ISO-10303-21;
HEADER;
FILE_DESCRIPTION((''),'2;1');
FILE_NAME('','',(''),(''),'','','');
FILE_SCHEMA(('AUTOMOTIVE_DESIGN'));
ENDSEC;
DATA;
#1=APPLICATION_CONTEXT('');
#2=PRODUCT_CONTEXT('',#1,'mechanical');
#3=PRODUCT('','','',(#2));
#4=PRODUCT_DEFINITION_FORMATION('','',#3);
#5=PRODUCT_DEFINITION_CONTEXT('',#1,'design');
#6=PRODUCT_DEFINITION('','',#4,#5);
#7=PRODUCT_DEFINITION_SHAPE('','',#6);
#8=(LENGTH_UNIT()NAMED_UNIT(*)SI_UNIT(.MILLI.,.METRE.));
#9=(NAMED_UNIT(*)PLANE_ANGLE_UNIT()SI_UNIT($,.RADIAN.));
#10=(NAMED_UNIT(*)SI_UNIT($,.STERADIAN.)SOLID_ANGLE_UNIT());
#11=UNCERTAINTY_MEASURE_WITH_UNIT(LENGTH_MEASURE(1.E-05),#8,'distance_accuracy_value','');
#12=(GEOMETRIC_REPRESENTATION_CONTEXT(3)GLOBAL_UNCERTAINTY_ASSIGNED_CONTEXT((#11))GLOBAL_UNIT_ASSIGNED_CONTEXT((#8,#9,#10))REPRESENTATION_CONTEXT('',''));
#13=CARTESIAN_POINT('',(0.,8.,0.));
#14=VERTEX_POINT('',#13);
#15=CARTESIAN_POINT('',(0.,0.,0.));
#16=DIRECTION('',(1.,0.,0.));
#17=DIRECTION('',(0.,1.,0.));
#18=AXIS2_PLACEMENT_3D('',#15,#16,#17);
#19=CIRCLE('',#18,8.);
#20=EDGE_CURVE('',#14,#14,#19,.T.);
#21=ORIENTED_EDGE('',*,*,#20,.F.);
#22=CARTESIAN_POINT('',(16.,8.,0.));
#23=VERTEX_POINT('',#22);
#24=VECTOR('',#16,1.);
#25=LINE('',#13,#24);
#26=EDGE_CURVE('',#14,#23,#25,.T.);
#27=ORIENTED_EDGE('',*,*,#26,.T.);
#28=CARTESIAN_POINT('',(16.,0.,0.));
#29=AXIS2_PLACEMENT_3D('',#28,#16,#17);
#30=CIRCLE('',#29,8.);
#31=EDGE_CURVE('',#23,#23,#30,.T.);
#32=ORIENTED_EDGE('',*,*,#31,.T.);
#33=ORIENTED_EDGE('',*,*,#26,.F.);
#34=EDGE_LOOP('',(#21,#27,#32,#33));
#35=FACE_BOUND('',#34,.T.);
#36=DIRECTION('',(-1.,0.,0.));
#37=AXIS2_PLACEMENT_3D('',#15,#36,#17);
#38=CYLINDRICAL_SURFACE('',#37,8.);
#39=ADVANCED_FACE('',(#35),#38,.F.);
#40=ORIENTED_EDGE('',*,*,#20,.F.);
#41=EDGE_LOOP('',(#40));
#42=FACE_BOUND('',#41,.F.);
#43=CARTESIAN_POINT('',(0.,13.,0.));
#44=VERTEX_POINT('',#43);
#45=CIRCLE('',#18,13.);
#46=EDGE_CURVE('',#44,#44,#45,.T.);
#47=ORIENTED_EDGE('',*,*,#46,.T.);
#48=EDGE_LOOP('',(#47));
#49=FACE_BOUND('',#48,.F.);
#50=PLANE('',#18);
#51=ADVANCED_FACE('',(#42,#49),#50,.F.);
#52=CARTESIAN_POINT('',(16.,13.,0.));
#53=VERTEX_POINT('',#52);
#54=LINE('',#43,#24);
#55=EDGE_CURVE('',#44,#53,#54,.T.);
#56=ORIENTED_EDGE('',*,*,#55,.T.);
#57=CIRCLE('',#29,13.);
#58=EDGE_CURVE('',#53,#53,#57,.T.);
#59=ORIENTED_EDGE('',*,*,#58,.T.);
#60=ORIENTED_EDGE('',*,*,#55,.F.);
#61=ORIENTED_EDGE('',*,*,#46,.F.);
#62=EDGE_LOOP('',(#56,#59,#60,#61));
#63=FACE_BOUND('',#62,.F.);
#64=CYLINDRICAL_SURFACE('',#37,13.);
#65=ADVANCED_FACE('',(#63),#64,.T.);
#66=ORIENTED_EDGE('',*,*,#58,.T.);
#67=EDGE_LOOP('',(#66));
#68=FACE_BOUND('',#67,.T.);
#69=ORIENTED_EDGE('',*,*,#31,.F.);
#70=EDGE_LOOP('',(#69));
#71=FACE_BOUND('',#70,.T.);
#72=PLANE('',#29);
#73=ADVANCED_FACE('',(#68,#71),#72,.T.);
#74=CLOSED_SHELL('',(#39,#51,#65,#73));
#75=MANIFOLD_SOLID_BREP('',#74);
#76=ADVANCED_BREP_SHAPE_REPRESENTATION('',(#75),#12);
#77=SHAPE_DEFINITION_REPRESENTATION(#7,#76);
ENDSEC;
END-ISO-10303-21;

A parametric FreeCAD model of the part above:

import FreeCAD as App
import Part
import Sketcher
from FreeCAD import Vector
Q = App.Units.Quantity

doc = App.newDocument("Part")
body = doc.addObject("PartDesign::Body", "Body")

# Sketch on YZ plane
sketch1 = doc.addObject("Sketcher::SketchObject", "Sketch")
body.addObject(sketch1)
sketch1.AttachmentSupport = (doc.YZ_Plane, [""])
sketch1.MapMode = "FlatFace"
sketch1.addGeometry([
    Part.Circle(Vector(0, 0, 0), Vector(0, 0, 1), 13),
    Part.Circle(Vector(0, 0, 0), Vector(0, 0, 1), 8),
], False)
sketch1.addConstraint([
    Sketcher.Constraint("Coincident", 0, 3, -1, 1),
    Sketcher.Constraint("Coincident", 1, 3, -1, 1),
    Sketcher.Constraint("Diameter", 0, Q("26 mm")),
    Sketcher.Constraint("Diameter", 1, Q("16 mm")),
])
pad1 = doc.addObject("PartDesign::Pad", "Pad")
body.addObject(pad1)
pad1.Profile = sketch1
pad1.Length = 16

doc.recompute()
